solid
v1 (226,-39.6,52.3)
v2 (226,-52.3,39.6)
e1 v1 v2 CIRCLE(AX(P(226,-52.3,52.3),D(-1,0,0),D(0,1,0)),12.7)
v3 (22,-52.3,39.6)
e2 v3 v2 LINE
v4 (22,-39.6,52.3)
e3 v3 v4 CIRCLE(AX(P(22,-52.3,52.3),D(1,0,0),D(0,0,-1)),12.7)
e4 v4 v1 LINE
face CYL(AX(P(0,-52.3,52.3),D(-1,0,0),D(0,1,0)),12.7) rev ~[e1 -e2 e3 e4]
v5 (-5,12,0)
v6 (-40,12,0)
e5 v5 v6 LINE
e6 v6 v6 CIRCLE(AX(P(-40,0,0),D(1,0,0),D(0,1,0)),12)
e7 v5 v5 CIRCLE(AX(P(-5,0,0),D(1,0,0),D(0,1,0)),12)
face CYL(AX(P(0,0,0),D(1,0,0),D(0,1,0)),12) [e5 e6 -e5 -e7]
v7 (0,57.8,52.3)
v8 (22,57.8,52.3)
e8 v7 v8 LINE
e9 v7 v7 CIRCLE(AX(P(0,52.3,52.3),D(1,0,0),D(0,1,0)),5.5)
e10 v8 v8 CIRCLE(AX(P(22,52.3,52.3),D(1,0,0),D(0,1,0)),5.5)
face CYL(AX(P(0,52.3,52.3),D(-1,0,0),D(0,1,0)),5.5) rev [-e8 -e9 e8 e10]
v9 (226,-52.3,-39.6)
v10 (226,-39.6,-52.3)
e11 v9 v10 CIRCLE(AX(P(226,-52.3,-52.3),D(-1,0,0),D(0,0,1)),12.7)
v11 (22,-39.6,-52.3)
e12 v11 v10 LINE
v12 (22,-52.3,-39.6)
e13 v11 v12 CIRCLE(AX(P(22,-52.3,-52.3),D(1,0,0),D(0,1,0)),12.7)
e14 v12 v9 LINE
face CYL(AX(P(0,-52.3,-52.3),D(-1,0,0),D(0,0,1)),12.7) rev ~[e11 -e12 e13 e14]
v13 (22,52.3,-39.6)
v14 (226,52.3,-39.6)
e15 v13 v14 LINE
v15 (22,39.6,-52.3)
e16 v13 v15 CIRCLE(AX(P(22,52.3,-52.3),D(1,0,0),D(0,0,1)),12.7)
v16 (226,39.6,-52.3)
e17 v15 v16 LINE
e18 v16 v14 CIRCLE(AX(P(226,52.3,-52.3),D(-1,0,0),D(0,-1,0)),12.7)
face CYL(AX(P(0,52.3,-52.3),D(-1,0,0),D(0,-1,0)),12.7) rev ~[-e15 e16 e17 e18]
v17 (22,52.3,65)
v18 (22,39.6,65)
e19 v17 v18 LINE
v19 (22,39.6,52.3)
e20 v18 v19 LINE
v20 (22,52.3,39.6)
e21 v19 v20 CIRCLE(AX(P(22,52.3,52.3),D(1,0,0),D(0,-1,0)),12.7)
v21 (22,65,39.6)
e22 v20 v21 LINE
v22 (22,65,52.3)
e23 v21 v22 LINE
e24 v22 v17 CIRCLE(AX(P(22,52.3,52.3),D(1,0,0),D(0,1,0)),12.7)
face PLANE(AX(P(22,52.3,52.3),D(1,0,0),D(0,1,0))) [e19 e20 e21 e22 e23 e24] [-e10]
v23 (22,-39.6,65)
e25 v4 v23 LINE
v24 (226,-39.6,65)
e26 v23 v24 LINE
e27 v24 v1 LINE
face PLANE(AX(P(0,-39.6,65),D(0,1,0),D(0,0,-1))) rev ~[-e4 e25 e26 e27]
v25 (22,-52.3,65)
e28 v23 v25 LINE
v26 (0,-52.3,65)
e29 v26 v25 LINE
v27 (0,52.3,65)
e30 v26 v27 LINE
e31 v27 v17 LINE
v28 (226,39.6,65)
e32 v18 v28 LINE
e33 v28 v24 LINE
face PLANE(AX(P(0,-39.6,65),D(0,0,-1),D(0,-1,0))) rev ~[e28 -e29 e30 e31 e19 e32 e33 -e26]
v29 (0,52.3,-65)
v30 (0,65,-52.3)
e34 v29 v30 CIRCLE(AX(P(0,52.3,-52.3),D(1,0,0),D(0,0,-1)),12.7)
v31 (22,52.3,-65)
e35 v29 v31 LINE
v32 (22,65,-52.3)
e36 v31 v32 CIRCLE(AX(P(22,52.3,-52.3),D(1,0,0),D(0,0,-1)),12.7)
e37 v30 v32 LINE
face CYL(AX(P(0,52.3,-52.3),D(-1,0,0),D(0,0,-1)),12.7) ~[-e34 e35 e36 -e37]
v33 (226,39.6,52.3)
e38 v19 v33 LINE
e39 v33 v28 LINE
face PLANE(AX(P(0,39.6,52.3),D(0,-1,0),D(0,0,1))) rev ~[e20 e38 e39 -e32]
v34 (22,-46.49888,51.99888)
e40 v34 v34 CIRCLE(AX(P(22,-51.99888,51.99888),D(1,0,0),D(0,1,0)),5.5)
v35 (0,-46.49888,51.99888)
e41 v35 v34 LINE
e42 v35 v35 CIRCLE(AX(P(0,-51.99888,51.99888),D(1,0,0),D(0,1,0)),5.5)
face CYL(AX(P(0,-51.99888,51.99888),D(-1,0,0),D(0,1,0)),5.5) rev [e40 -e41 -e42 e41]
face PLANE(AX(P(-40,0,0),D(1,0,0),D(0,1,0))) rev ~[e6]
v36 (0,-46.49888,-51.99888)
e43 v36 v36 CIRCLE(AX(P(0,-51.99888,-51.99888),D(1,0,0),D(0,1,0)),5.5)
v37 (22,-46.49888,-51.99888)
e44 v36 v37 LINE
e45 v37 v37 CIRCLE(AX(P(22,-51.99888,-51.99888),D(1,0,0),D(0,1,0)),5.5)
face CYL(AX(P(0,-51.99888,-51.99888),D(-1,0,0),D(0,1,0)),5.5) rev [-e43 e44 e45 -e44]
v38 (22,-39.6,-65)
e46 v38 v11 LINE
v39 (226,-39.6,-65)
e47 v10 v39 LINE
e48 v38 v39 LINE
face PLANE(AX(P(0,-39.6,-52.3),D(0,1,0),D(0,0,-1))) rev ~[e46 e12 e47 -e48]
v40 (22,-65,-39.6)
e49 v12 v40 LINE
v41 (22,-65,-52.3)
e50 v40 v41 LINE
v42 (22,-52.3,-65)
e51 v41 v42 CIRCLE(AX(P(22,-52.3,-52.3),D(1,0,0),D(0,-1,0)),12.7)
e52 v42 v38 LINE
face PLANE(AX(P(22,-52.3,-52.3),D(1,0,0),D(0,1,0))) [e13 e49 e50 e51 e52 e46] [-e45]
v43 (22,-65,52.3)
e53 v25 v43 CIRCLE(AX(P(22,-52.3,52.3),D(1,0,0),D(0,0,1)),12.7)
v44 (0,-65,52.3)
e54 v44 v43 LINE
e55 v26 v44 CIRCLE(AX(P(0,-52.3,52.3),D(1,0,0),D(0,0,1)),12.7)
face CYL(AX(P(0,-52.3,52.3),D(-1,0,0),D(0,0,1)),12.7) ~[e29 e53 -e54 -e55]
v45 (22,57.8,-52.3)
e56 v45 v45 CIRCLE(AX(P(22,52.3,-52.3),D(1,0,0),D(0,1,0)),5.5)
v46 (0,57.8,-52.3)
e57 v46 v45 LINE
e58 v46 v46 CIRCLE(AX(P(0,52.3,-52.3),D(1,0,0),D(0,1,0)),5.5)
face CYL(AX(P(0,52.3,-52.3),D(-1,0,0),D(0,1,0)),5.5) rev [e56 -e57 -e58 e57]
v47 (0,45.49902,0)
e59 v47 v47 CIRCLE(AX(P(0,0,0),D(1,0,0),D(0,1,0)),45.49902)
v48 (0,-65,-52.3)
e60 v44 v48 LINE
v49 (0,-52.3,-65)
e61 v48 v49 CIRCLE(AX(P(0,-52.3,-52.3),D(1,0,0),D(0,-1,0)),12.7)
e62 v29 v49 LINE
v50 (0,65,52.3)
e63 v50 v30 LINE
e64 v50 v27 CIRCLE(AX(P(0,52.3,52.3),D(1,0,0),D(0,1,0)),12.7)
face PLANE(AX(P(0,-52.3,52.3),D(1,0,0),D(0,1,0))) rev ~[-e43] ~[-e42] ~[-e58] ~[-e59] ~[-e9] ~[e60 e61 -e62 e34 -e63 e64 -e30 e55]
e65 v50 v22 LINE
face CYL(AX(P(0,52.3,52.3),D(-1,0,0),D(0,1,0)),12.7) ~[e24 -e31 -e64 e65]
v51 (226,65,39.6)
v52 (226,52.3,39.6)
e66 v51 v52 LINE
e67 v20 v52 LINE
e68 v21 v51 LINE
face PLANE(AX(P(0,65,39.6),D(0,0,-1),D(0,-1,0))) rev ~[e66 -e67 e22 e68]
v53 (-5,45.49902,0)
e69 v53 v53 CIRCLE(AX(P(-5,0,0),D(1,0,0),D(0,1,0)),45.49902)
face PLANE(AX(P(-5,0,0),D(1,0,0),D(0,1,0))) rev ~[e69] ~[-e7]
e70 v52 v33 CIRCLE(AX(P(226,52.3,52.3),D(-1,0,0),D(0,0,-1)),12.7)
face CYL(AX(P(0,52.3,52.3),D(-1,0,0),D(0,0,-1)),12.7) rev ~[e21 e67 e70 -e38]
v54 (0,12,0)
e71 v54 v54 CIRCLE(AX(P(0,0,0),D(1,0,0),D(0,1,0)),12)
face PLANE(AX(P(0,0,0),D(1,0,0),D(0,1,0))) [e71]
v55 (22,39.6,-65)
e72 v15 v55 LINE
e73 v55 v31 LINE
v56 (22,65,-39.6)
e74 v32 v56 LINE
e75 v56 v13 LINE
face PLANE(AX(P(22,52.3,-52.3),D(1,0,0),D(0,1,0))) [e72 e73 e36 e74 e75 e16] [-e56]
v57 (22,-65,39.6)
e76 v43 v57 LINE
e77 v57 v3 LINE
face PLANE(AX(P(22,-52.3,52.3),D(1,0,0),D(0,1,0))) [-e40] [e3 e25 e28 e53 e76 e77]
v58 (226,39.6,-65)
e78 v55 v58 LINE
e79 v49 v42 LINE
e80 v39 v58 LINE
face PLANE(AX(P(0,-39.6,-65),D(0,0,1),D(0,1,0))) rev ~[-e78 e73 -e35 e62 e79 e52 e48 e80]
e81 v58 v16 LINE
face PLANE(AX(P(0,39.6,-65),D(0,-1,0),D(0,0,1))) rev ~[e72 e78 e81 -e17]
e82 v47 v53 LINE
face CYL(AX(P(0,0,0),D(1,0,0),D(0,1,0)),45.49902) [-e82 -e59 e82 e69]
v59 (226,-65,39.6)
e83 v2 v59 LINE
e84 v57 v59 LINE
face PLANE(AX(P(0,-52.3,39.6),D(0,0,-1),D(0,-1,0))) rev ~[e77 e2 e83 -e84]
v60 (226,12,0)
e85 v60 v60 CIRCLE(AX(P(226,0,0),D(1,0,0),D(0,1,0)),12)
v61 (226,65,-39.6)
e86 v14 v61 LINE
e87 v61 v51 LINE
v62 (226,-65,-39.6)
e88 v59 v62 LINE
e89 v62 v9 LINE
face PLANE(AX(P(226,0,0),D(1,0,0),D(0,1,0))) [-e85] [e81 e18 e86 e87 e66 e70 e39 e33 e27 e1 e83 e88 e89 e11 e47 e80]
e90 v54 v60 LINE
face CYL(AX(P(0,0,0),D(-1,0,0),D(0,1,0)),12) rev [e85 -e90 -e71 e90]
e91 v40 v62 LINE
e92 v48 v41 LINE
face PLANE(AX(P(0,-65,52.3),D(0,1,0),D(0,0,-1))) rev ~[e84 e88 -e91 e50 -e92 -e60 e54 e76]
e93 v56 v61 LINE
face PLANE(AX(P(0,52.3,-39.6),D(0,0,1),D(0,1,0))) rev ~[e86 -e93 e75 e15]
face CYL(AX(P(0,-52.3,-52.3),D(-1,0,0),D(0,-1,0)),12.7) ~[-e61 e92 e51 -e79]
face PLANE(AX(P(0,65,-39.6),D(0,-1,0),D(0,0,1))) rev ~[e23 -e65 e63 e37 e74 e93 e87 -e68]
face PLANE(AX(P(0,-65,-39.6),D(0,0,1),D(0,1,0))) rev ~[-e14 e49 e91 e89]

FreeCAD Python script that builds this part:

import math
import FreeCAD as App
import Part
import Sketcher

V = App.Vector
Q = App.Units.Quantity

doc = App.newDocument("Part")
body = doc.addObject("PartDesign::Body", "Body")

sketch1 = body.newObject("Sketcher::SketchObject", "Sketch")
sketch1.AttachmentSupport = (doc.getObject("YZ_Plane"), [""])
sketch1.MapMode = "FlatFace"
sketch1.addGeometry(Part.Circle(V(0, 0, 0), V(0, 0, 1), 12), False)
sketch1.addConstraint([
    Sketcher.Constraint("Coincident", 0, 3, -1, 1),
    Sketcher.Constraint("Diameter", 0, Q("24 mm")),
])
pad1 = body.newObject("PartDesign::Pad", "Pad")
pad1.Profile = sketch1
pad1.Length = 40
pad1.Reversed = True

sketch2 = body.newObject("Sketcher::SketchObject", "Sketch001")
sketch2.AttachmentSupport = (doc.getObject("YZ_Plane"), [""])
sketch2.MapMode = "FlatFace"
sketch2.addGeometry([
    Part.Circle(V(0, 0, 0), V(0, 0, 1), 45.49902),
    Part.Circle(V(0, 0, 0), V(0, 0, 1), 12),
], False)
sketch2.addConstraint([
    Sketcher.Constraint("Coincident", 0, 3, -1, 1),
    Sketcher.Constraint("Coincident", 1, 3, -1, 1),
    Sketcher.Constraint("Diameter", 1, Q("24 mm")),
    Sketcher.Constraint("Diameter", 0, Q("90.99804 mm")),
])
pad2 = body.newObject("PartDesign::Pad", "Pad001")
pad2.Profile = sketch2
pad2.Length = 5
pad2.Reversed = True

sketch3 = body.newObject("Sketcher::SketchObject", "Sketch002")
sketch3.AttachmentSupport = (doc.getObject("YZ_Plane"), [""])
sketch3.MapMode = "FlatFace"
sketch3.addGeometry([
    Part.LineSegment(V(-39.6, -65, 0), V(39.6, -65, 0)),
    Part.LineSegment(V(39.6, -65, 0), V(39.6, -52.3, 0)),
    Part.ArcOfCircle(Part.Circle(V(52.3, -52.3, 0), V(0, 0, 1), 12.7), math.radians(90), math.radians(180)),
    Part.LineSegment(V(52.3, -39.6, 0), V(65, -39.6, 0)),
    Part.LineSegment(V(65, -39.6, 0), V(65, 39.6, 0)),
    Part.LineSegment(V(65, 39.6, 0), V(52.3, 39.6, 0)),
    Part.ArcOfCircle(Part.Circle(V(52.3, 52.3, 0), V(0, 0, 1), 12.7), math.radians(180), math.radians(270)),
    Part.LineSegment(V(39.6, 52.3, 0), V(39.6, 65, 0)),
    Part.LineSegment(V(39.6, 65, 0), V(-39.6, 65, 0)),
    Part.LineSegment(V(-39.6, 65, 0), V(-39.6, 52.3, 0)),
    Part.ArcOfCircle(Part.Circle(V(-52.3, 52.3, 0), V(0, 0, 1), 12.7), math.radians(-90), math.radians(0)),
    Part.LineSegment(V(-52.3, 39.6, 0), V(-65, 39.6, 0)),
    Part.LineSegment(V(-65, 39.6, 0), V(-65, -39.6, 0)),
    Part.LineSegment(V(-65, -39.6, 0), V(-52.3, -39.6, 0)),
    Part.ArcOfCircle(Part.Circle(V(-52.3, -52.3, 0), V(0, 0, 1), 12.7), math.radians(0), math.radians(90)),
    Part.LineSegment(V(-39.6, -52.3, 0), V(-39.6, -65, 0)),
    Part.Circle(V(0, 0, 0), V(0, 0, 1), 12),
], False)
sketch3.addConstraint([
    Sketcher.Constraint("Coincident", 0, 2, 1, 1),
    Sketcher.Constraint("Tangent", 1, 2, 2, 2),
    Sketcher.Constraint("Tangent", 2, 1, 3, 1),
    Sketcher.Constraint("Coincident", 3, 2, 4, 1),
    Sketcher.Constraint("Coincident", 4, 2, 5, 1),
    Sketcher.Constraint("Tangent", 5, 2, 6, 2),
    Sketcher.Constraint("Tangent", 6, 1, 7, 1),
    Sketcher.Constraint("Coincident", 7, 2, 8, 1),
    Sketcher.Constraint("Coincident", 8, 2, 9, 1),
    Sketcher.Constraint("Tangent", 9, 2, 10, 2),
    Sketcher.Constraint("Tangent", 10, 1, 11, 1),
    Sketcher.Constraint("Coincident", 11, 2, 12, 1),
    Sketcher.Constraint("Coincident", 12, 2, 13, 1),
    Sketcher.Constraint("Tangent", 13, 2, 14, 2),
    Sketcher.Constraint("Tangent", 14, 1, 15, 1),
    Sketcher.Constraint("Coincident", 15, 2, 0, 1),
    Sketcher.Constraint("Horizontal", 0),
    Sketcher.Constraint("Vertical", 1),
    Sketcher.Constraint("Horizontal", 3),
    Sketcher.Constraint("Vertical", 4),
    Sketcher.Constraint("Horizontal", 5),
    Sketcher.Constraint("Vertical", 7),
    Sketcher.Constraint("Horizontal", 8),
    Sketcher.Constraint("Vertical", 9),
    Sketcher.Constraint("Horizontal", 11),
    Sketcher.Constraint("Vertical", 12),
    Sketcher.Constraint("Horizontal", 13),
    Sketcher.Constraint("Vertical", 15),
    Sketcher.Constraint("Coincident", 16, 3, -1, 1),
    Sketcher.Constraint("Equal", 2, 6),
    Sketcher.Constraint("Equal", 6, 10),
    Sketcher.Constraint("Equal", 10, 14),
    Sketcher.Constraint("Symmetric", 2, 3, 10, 3, -1, 1),
    Sketcher.Constraint("Symmetric", 6, 3, 14, 3, -1, 1),
    Sketcher.Constraint("Symmetric", 6, 3, 10, 3, -2),
    Sketcher.Constraint("Equal", 5, 11),
    Sketcher.Constraint("Equal", 13, 1),
    Sketcher.Constraint("Equal", 8, 4),
    Sketcher.Constraint("Equal", 1, 7),
    Sketcher.Constraint("Diameter", 16, Q("24 mm")),
    Sketcher.Constraint("Radius", 2, Q("12.7 mm")),
    Sketcher.Constraint("DistanceX", 0, 1, 0, 2, Q("79.2 mm")),
    Sketcher.Constraint("DistanceX", 3, 1, 3, 2, Q("12.7 mm")),
])
pad3 = body.newObject("PartDesign::Pad", "Pad002")
pad3.Profile = sketch3
pad3.Length = 226

sketch4 = body.newObject("Sketcher::SketchObject", "Sketch003")
sketch4.AttachmentSupport = (doc.getObject("YZ_Plane"), [""])
sketch4.MapMode = "FlatFace"
sketch4.addGeometry([
    Part.LineSegment(V(-65, 52.3, 0), V(-65, 39.6, 0)),
    Part.LineSegment(V(-65, 39.6, 0), V(-52.3, 39.6, 0)),
    Part.ArcOfCircle(Part.Circle(V(-52.3, 52.3, 0), V(0, 0, 1), 12.7), math.radians(-90), math.radians(0)),
    Part.LineSegment(V(-39.6, 52.3, 0), V(-39.6, 65, 0)),
    Part.LineSegment(V(-39.6, 65, 0), V(-52.3, 65, 0)),
    Part.ArcOfCircle(Part.Circle(V(-52.3, 52.3, 0), V(0, 0, 1), 12.7), math.radians(90), math.radians(180)),
    Part.Circle(V(-51.99888, 51.99888, 0), V(0, 0, 1), 5.5),
    Part.LineSegment(V(52.3, 39.6, 0), V(65, 39.6, 0)),
    Part.LineSegment(V(65, 39.6, 0), V(65, 52.3, 0)),
    Part.ArcOfCircle(Part.Circle(V(52.3, 52.3, 0), V(0, 0, 1), 12.7), math.radians(0), math.radians(90)),
    Part.LineSegment(V(52.3, 65, 0), V(39.6, 65, 0)),
    Part.LineSegment(V(39.6, 65, 0), V(39.6, 52.3, 0)),
    Part.ArcOfCircle(Part.Circle(V(52.3, 52.3, 0), V(0, 0, 1), 12.7), math.radians(180), math.radians(270)),
    Part.Circle(V(52.3, 52.3, 0), V(0, 0, 1), 5.5),
    Part.LineSegment(V(39.6, -65, 0), V(52.3, -65, 0)),
    Part.ArcOfCircle(Part.Circle(V(52.3, -52.3, 0), V(0, 0, 1), 12.7), math.radians(-90), math.radians(0)),
    Part.LineSegment(V(65, -52.3, 0), V(65, -39.6, 0)),
    Part.LineSegment(V(65, -39.6, 0), V(52.3, -39.6, 0)),
    Part.ArcOfCircle(Part.Circle(V(52.3, -52.3, 0), V(0, 0, 1), 12.7), math.radians(90), math.radians(180)),
    Part.LineSegment(V(39.6, -52.3, 0), V(39.6, -65, 0)),
    Part.Circle(V(52.3, -52.3, 0), V(0, 0, 1), 5.5),
    Part.LineSegment(V(-52.3, -65, 0), V(-39.6, -65, 0)),
    Part.LineSegment(V(-39.6, -65, 0), V(-39.6, -52.3, 0)),
    Part.ArcOfCircle(Part.Circle(V(-52.3, -52.3, 0), V(0, 0, 1), 12.7), math.radians(0), math.radians(90)),
    Part.LineSegment(V(-52.3, -39.6, 0), V(-65, -39.6, 0)),
    Part.LineSegment(V(-65, -39.6, 0), V(-65, -52.3, 0)),
    Part.ArcOfCircle(Part.Circle(V(-52.3, -52.3, 0), V(0, 0, 1), 12.7), math.radians(180), math.radians(270)),
    Part.Circle(V(-51.99888, -51.99888, 0), V(0, 0, 1), 5.5),
], False)
sketch4.addConstraint([
    Sketcher.Constraint("Coincident", 0, 2, 1, 1),
    Sketcher.Constraint("Tangent", 1, 2, 2, 1),
    Sketcher.Constraint("Tangent", 2, 2, 3, 1),
    Sketcher.Constraint("Coincident", 3, 2, 4, 1),
    Sketcher.Constraint("Tangent", 4, 2, 5, 1),
    Sketcher.Constraint("Tangent", 5, 2, 0, 1),
    Sketcher.Constraint("Coincident", 7, 2, 8, 1),
    Sketcher.Constraint("Tangent", 8, 2, 9, 1),
    Sketcher.Constraint("Tangent", 9, 2, 10, 1),
    Sketcher.Constraint("Coincident", 10, 2, 11, 1),
    Sketcher.Constraint("Tangent", 11, 2, 12, 1),
    Sketcher.Constraint("Tangent", 12, 2, 7, 1),
    Sketcher.Constraint("Tangent", 14, 2, 15, 1),
    Sketcher.Constraint("Tangent", 15, 2, 16, 1),
    Sketcher.Constraint("Coincident", 16, 2, 17, 1),
    Sketcher.Constraint("Tangent", 17, 2, 18, 1),
    Sketcher.Constraint("Tangent", 18, 2, 19, 1),
    Sketcher.Constraint("Coincident", 19, 2, 14, 1),
    Sketcher.Constraint("Coincident", 21, 2, 22, 1),
    Sketcher.Constraint("Tangent", 22, 2, 23, 1),
    Sketcher.Constraint("Tangent", 23, 2, 24, 1),
    Sketcher.Constraint("Coincident", 24, 2, 25, 1),
    Sketcher.Constraint("Tangent", 25, 2, 26, 1),
    Sketcher.Constraint("Tangent", 26, 2, 21, 1),
    Sketcher.Constraint("Vertical", 0),
    Sketcher.Constraint("Horizontal", 1),
    Sketcher.Constraint("Vertical", 3),
    Sketcher.Constraint("Horizontal", 4),
    Sketcher.Constraint("Horizontal", 7),
    Sketcher.Constraint("Vertical", 8),
    Sketcher.Constraint("Horizontal", 10),
    Sketcher.Constraint("Vertical", 11),
    Sketcher.Constraint("Horizontal", 14),
    Sketcher.Constraint("Vertical", 16),
    Sketcher.Constraint("Horizontal", 17),
    Sketcher.Constraint("Vertical", 19),
    Sketcher.Constraint("Horizontal", 21),
    Sketcher.Constraint("Vertical", 22),
    Sketcher.Constraint("Horizontal", 24),
    Sketcher.Constraint("Vertical", 25),
    Sketcher.Constraint("Coincident", 5, 3, 2, 3),
    Sketcher.Constraint("Coincident", 12, 3, 9, 3),
    Sketcher.Constraint("Coincident", 13, 3, 9, 3),
    Sketcher.Constraint("Coincident", 18, 3, 15, 3),
    Sketcher.Constraint("Coincident", 20, 3, 15, 3),
    Sketcher.Constraint("Coincident", 26, 3, 23, 3),
    Sketcher.Constraint("Equal", 2, 5),
    Sketcher.Constraint("Equal", 5, 9),
    Sketcher.Constraint("Equal", 9, 12),
    Sketcher.Constraint("Equal", 6, 13),
    Sketcher.Constraint("Equal", 12, 15),
    Sketcher.Constraint("Equal", 15, 18),
    Sketcher.Constraint("Equal", 13, 20),
    Sketcher.Constraint("Equal", 18, 23),
    Sketcher.Constraint("Equal", 23, 26),
    Sketcher.Constraint("Equal", 20, 27),
    Sketcher.Constraint("Symmetric", 2, 3, 15, 3, -1, 1),
    Sketcher.Constraint("Symmetric", 9, 3, 23, 3, -1, 1),
    Sketcher.Constraint("Symmetric", 2, 3, 9, 3, -2),
    Sketcher.Constraint("Symmetric", 6, 3, 27, 3, -1),
    Sketcher.Constraint("Diameter", 6, Q("11 mm")),
    Sketcher.Constraint("Radius", 2, Q("12.7 mm")),
    Sketcher.Constraint("DistanceX", 0, 2, -1, 1, Q("65 mm")),
    Sketcher.Constraint("DistanceY", -1, 1, 3, 2, Q("65 mm")),
    Sketcher.Constraint("DistanceX", 6, 3, -1, 1, Q("51.99888 mm")),
    Sketcher.Constraint("DistanceY", -1, 1, 6, 3, Q("51.99888 mm")),
])
pad4 = body.newObject("PartDesign::Pad", "Pad003")
pad4.Profile = sketch4
pad4.Length = 22

doc.recompute()
